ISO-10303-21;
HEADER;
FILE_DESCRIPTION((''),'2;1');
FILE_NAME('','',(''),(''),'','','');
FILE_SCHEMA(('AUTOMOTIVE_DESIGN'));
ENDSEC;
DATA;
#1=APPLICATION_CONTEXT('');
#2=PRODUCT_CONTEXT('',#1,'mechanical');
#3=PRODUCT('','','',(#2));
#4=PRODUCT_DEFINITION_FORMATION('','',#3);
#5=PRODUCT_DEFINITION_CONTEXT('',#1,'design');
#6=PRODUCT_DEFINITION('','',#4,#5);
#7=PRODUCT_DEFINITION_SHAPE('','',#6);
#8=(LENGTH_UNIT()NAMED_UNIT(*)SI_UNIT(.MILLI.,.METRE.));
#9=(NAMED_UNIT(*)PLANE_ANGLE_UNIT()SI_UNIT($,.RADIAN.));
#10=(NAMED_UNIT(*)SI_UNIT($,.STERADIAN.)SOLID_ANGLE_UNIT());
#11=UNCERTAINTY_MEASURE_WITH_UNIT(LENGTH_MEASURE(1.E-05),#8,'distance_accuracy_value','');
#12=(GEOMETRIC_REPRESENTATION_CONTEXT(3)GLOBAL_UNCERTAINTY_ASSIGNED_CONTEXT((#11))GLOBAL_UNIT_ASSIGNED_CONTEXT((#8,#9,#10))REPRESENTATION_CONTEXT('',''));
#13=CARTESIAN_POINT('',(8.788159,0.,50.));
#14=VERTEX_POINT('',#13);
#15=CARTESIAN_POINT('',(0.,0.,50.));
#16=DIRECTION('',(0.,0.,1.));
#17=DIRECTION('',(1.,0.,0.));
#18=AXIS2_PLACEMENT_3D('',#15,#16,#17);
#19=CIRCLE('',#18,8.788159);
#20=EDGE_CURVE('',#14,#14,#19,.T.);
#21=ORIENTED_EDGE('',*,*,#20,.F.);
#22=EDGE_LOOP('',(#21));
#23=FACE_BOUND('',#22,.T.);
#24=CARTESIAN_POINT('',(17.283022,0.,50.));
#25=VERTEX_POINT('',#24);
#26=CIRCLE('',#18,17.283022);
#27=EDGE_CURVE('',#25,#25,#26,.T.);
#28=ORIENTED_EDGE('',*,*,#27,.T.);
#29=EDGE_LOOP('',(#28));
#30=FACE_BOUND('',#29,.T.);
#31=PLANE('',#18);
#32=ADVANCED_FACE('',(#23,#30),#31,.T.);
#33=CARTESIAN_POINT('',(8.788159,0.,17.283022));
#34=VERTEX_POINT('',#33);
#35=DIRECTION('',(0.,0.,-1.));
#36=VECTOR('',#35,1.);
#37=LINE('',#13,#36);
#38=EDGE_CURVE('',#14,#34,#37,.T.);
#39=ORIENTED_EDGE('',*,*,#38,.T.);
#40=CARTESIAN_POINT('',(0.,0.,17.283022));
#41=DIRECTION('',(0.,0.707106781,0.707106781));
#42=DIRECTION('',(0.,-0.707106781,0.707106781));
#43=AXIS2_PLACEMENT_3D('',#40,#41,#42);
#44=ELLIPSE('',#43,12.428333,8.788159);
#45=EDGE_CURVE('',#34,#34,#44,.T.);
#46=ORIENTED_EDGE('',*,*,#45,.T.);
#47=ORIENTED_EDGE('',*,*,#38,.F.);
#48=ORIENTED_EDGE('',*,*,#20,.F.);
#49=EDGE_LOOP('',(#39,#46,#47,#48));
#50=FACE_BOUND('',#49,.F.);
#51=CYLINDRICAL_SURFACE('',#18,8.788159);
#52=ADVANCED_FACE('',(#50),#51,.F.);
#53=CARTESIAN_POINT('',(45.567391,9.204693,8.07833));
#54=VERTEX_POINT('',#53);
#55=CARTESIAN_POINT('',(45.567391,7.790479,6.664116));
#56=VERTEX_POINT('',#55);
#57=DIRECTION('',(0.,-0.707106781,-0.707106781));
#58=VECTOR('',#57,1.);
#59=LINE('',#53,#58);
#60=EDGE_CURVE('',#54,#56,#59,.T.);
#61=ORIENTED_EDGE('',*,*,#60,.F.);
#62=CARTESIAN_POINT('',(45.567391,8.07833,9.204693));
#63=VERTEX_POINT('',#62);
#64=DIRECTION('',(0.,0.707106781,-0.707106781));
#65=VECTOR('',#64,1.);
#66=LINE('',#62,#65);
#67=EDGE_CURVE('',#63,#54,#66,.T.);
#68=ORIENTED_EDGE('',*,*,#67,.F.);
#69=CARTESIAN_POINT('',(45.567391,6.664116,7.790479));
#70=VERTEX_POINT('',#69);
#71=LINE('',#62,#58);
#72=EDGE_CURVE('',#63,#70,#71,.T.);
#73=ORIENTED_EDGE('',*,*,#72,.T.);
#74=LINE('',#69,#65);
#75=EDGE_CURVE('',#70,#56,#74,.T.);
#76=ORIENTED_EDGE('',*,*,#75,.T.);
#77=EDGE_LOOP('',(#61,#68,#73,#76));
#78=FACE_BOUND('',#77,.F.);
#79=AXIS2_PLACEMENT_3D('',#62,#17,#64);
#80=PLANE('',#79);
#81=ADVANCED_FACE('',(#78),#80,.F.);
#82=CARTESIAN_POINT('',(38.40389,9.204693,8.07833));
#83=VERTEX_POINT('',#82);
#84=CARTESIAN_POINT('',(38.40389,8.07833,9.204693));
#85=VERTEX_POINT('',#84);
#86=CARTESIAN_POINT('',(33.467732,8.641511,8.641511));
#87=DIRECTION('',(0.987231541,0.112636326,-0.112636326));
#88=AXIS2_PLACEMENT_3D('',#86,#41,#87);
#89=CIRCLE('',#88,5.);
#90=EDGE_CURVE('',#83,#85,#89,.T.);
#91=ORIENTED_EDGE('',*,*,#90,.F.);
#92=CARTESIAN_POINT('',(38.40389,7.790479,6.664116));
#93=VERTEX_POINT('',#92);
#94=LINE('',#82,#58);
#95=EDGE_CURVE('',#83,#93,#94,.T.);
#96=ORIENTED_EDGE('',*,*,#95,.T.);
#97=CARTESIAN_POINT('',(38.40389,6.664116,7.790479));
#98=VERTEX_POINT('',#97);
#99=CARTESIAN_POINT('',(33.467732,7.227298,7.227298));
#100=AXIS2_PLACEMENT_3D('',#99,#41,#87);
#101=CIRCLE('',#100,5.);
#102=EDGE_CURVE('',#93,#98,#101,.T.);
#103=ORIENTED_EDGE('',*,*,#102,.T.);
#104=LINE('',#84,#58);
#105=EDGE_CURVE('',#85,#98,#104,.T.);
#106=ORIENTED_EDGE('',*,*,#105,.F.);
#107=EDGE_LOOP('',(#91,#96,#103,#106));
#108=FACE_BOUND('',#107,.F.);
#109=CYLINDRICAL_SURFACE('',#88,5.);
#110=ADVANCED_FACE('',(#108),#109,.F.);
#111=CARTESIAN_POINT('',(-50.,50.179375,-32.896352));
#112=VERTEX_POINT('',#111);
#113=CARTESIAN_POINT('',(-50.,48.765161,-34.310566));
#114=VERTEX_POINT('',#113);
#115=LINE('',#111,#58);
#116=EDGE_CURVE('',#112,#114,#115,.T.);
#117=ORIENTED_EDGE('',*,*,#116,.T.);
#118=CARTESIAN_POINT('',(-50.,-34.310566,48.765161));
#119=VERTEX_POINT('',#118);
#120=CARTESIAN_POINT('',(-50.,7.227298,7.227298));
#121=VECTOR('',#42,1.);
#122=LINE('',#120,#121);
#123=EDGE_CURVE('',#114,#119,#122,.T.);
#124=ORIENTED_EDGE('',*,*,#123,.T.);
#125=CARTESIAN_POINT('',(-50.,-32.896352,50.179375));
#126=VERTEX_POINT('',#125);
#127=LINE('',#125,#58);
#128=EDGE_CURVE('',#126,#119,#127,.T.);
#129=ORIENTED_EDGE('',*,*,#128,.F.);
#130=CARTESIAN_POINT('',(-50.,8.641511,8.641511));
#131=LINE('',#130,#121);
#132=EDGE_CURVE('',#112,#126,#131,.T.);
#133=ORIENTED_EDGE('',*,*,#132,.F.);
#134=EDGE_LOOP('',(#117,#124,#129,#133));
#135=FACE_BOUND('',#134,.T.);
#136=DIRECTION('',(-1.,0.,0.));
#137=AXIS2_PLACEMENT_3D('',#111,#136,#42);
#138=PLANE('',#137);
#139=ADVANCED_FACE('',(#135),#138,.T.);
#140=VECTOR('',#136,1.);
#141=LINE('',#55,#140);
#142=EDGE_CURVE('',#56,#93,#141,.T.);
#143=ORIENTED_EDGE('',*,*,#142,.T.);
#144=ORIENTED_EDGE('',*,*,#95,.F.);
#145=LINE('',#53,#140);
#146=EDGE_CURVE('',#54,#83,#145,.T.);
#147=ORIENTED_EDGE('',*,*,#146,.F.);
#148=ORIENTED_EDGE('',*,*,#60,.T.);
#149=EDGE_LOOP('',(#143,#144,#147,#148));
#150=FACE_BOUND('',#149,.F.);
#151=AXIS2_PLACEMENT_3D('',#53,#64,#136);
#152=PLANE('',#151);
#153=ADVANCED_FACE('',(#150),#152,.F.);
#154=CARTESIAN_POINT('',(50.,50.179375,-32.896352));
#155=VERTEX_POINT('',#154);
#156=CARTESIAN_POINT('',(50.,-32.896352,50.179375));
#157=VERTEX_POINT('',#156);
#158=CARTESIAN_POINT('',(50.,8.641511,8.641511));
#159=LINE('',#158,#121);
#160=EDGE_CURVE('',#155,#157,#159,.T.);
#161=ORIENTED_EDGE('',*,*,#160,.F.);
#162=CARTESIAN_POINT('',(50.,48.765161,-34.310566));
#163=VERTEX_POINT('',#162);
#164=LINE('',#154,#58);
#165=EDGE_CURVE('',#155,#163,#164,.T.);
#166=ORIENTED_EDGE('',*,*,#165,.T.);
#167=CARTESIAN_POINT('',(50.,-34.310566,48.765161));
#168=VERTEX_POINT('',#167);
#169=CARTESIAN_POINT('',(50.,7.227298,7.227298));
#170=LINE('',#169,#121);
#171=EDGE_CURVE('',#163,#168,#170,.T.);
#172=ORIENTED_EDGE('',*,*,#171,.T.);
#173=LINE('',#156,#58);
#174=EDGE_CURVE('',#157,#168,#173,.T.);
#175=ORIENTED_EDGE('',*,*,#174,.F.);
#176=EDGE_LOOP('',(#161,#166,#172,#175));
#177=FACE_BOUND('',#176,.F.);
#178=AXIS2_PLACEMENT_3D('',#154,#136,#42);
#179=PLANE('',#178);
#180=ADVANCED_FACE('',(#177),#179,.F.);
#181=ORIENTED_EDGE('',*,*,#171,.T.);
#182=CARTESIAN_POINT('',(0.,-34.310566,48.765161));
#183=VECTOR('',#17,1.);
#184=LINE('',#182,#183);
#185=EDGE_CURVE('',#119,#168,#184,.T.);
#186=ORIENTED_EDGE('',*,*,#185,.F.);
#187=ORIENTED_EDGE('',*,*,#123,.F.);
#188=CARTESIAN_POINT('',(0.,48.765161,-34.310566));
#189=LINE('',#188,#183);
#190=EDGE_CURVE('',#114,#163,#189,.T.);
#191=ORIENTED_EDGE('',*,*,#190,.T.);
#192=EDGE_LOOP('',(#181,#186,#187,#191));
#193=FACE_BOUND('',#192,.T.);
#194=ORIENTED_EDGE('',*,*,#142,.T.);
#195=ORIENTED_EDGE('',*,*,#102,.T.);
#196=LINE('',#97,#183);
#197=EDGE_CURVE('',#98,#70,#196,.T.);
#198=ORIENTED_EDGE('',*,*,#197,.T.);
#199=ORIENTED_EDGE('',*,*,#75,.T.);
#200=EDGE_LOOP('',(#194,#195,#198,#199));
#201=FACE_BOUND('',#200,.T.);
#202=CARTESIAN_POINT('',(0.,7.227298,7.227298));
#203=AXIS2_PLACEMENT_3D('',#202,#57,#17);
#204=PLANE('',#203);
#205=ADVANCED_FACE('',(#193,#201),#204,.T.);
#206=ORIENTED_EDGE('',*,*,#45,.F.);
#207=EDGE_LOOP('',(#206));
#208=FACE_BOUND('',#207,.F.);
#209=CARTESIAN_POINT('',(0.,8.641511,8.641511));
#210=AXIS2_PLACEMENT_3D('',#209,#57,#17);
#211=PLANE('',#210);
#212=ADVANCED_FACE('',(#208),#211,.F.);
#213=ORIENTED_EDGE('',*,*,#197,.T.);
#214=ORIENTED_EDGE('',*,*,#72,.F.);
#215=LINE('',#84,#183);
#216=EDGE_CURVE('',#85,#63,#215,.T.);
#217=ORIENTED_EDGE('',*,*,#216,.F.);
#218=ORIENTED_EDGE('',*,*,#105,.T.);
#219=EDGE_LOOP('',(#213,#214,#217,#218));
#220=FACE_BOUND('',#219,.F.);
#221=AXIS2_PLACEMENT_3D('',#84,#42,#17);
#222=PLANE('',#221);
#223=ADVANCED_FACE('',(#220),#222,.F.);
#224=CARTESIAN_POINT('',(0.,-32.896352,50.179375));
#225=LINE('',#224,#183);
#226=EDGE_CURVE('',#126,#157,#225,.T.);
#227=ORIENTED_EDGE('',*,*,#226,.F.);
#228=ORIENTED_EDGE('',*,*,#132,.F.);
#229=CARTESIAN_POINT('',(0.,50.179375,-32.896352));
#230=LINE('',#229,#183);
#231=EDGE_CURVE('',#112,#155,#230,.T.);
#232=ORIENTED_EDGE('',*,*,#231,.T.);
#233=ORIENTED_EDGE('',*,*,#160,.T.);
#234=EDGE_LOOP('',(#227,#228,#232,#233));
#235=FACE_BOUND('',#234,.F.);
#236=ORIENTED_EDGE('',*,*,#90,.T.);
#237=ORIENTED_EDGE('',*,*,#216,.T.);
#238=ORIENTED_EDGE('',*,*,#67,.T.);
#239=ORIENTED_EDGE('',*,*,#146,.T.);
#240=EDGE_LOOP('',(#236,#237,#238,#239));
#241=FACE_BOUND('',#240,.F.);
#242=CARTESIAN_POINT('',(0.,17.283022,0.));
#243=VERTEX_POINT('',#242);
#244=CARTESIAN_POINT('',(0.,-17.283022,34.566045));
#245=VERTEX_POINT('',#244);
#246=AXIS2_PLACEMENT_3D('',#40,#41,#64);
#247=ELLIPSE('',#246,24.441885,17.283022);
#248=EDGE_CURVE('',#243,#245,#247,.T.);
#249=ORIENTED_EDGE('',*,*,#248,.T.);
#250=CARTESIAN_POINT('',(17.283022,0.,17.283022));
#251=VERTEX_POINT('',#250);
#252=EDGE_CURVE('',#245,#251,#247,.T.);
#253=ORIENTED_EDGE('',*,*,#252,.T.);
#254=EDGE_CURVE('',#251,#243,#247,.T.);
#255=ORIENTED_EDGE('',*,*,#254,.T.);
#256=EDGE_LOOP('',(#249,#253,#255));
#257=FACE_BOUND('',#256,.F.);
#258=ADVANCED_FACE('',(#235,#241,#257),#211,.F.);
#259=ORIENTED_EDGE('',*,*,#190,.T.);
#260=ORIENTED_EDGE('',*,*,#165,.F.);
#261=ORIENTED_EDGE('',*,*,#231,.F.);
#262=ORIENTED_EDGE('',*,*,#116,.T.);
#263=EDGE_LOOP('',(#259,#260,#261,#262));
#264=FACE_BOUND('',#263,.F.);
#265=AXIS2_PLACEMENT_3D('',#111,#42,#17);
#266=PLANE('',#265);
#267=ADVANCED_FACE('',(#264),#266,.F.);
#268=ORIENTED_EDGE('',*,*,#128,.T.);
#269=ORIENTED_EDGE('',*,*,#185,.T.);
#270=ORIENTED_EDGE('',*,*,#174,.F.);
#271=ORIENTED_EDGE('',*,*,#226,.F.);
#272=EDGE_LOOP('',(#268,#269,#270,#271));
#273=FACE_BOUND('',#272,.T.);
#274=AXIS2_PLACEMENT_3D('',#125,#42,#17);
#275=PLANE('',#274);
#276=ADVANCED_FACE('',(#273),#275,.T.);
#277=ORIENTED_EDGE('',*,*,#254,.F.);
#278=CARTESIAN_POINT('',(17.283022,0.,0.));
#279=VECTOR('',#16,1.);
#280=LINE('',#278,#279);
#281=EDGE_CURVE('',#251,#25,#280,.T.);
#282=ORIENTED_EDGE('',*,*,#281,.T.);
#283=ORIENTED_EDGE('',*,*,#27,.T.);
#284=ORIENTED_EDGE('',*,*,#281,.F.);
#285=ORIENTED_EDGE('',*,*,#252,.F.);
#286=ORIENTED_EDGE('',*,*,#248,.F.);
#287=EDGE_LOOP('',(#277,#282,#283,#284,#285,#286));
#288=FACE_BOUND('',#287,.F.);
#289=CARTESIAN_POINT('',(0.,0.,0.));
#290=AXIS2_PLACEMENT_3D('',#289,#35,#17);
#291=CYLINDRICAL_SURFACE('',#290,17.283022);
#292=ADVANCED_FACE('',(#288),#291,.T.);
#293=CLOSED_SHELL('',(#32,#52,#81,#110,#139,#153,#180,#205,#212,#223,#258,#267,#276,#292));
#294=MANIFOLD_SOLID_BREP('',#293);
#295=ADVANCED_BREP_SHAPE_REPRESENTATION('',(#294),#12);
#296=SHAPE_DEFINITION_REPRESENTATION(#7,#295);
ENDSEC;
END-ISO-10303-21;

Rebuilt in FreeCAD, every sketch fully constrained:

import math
import FreeCAD as App
import Part
import Sketcher

V = App.Vector
Q = App.Units.Quantity

doc = App.newDocument("Part")
body = doc.addObject("PartDesign::Body", "Body")

# Sketch on XY plane
sketch1 = body.newObject("Sketcher::SketchObject", "Sketch")
sketch1.AttachmentSupport = (doc.getObject("XY_Plane"), [""])
sketch1.MapMode = "FlatFace"
sketch1.addGeometry(Part.Circle(V(0, 0, 0), V(0, 0, 1), 17.283022), False)
sketch1.addConstraint(Sketcher.Constraint("Coincident", 0, 3, -1, 1))
sketch1.addConstraint(Sketcher.Constraint("Diameter", 0, Q("34.566045 mm")))
pad1 = body.newObject("PartDesign::Pad", "Pad")
pad1.Profile = sketch1
pad1.Length = 50

# Sketch on XY plane
sketch2 = body.newObject("Sketcher::SketchObject", "Sketch001")
sketch2.AttachmentSupport = (doc.getObject("XY_Plane"), [""])
sketch2.MapMode = "FlatFace"
sketch2.AttachmentOffset = App.Placement(V(0, 0, 50), App.Rotation())
sketch2.addGeometry(Part.Circle(V(0, 0, 0), V(0, 0, 1), 8.788159), False)
sketch2.addConstraint(Sketcher.Constraint("Coincident", 0, 3, -1, 1))
sketch2.addConstraint(Sketcher.Constraint("Diameter", 0, Q("17.576317 mm")))
pocket1 = body.newObject("PartDesign::Pocket", "Pocket")
pocket1.Profile = sketch2
pocket1.Length = 50

# Sketch on YZ plane
sketch3 = body.newObject("Sketcher::SketchObject", "Sketch002")
sketch3.AttachmentSupport = (doc.getObject("YZ_Plane"), [""])
sketch3.MapMode = "FlatFace"
sketch3.addGeometry(Part.LineSegment(V(-17.283022, 34.566045, 0), V(-17.283022, 0, 0)), False)
sketch3.addGeometry(Part.LineSegment(V(-17.283022, 0, 0), V(17.283022, 0, 0)), False)
sketch3.addGeometry(Part.LineSegment(V(17.283022, 0, 0), V(-17.283022, 34.566045, 0)), False)
sketch3.addConstraint(Sketcher.Constraint("Coincident", 0, 2, 1, 1))
sketch3.addConstraint(Sketcher.Constraint("Coincident", 1, 2, 2, 1))
sketch3.addConstraint(Sketcher.Constraint("Coincident", 2, 2, 0, 1))
sketch3.addConstraint(Sketcher.Constraint("Vertical", 0))
sketch3.addConstraint(Sketcher.Constraint("Horizontal", 1))
sketch3.addConstraint(Sketcher.Constraint("Symmetric", 0, 2, 1, 2, -1, 1))
sketch3.addConstraint(Sketcher.Constraint("Equal", 1, 0))
sketch3.addConstraint(Sketcher.Constraint("Distance", 2, Q("48.883769 mm")))
pocket2 = body.newObject("PartDesign::Pocket", "Pocket001")
pocket2.Profile = sketch3
pocket2.Length = 40
pocket2.Midplane = True

# Sketch on an angled plane
sketch4 = body.newObject("Sketcher::SketchObject", "Sketch003")
sketch4.Placement = App.Placement(V(0, 8.641511, 8.641511), App.Rotation(V(1, 0, 0), V(0, -0.707106781, 0.707106781), V(0, -0.707106781, -0.707106781), "ZXY"))
sketch4.addGeometry(Part.LineSegment(V(-50, 58.74341, 0), V(-50, -58.74341, 0)), False)
sketch4.addGeometry(Part.LineSegment(V(-50, -58.74341, 0), V(50, -58.74341, 0)), False)
sketch4.addGeometry(Part.LineSegment(V(50, -58.74341, 0), V(50, 58.74341, 0)), False)
sketch4.addGeometry(Part.LineSegment(V(50, 58.74341, 0), V(-50, 58.74341, 0)), False)
sketch4.addGeometry(Part.LineSegment(V(45.567391, -0.796459, 0), V(38.40389, -0.796459, 0)), False)
sketch4.addGeometry(Part.ArcOfCircle(Part.Circle(V(33.467732, 0, 0), V(0, 0, 1), 5), math.radians(9.165793), math.radians(350.834207)), False)
sketch4.addGeometry(Part.LineSegment(V(38.40389, 0.796459, 0), V(45.567391, 0.796459, 0)), False)
sketch4.addGeometry(Part.LineSegment(V(45.567391, 0.796459, 0), V(45.567391, -0.796459, 0)), False)
sketch4.addConstraint(Sketcher.Constraint("Coincident", 0, 2, 1, 1))
sketch4.addConstraint(Sketcher.Constraint("Coincident", 1, 2, 2, 1))
sketch4.addConstraint(Sketcher.Constraint("Coincident", 2, 2, 3, 1))
sketch4.addConstraint(Sketcher.Constraint("Coincident", 3, 2, 0, 1))
sketch4.addConstraint(Sketcher.Constraint("Coincident", 4, 2, 5, 2))
sketch4.addConstraint(Sketcher.Constraint("Coincident", 5, 1, 6, 1))
sketch4.addConstraint(Sketcher.Constraint("Coincident", 6, 2, 7, 1))
sketch4.addConstraint(Sketcher.Constraint("Coincident", 7, 2, 4, 1))
sketch4.addConstraint(Sketcher.Constraint("Vertical", 0))
sketch4.addConstraint(Sketcher.Constraint("Horizontal", 1))
sketch4.addConstraint(Sketcher.Constraint("Vertical", 2))
sketch4.addConstraint(Sketcher.Constraint("Horizontal", 3))
sketch4.addConstraint(Sketcher.Constraint("Horizontal", 4))
sketch4.addConstraint(Sketcher.Constraint("Horizontal", 6))
sketch4.addConstraint(Sketcher.Constraint("Vertical", 7))
sketch4.addConstraint(Sketcher.Constraint("Symmetric", 0, 2, 2, 2, -1, 1))
sketch4.addConstraint(Sketcher.Constraint("Symmetric", 4, 2, 5, 1, -1))
sketch4.addConstraint(Sketcher.Constraint("Radius", 5, Q("5 mm")))
sketch4.addConstraint(Sketcher.Constraint("DistanceX", 1, 1, 1, 2, Q("100 mm")))
sketch4.addConstraint(Sketcher.Constraint("DistanceX", 4, 2, 4, 1, Q("7.163501 mm")))
sketch4.addConstraint(Sketcher.Constraint("DistanceY", 0, 2, 0, 1, Q("117.48682 mm")))
sketch4.addConstraint(Sketcher.Constraint("DistanceY", 7, 2, 7, 1, Q("1.592918 mm")))
sketch4.addConstraint(Sketcher.Constraint("DistanceX", -1, 1, 4, 2, Q("38.40389 mm")))
pad2 = body.newObject("PartDesign::Pad", "Pad001")
pad2.Profile = sketch4
pad2.Length = 2

doc.recompute()
